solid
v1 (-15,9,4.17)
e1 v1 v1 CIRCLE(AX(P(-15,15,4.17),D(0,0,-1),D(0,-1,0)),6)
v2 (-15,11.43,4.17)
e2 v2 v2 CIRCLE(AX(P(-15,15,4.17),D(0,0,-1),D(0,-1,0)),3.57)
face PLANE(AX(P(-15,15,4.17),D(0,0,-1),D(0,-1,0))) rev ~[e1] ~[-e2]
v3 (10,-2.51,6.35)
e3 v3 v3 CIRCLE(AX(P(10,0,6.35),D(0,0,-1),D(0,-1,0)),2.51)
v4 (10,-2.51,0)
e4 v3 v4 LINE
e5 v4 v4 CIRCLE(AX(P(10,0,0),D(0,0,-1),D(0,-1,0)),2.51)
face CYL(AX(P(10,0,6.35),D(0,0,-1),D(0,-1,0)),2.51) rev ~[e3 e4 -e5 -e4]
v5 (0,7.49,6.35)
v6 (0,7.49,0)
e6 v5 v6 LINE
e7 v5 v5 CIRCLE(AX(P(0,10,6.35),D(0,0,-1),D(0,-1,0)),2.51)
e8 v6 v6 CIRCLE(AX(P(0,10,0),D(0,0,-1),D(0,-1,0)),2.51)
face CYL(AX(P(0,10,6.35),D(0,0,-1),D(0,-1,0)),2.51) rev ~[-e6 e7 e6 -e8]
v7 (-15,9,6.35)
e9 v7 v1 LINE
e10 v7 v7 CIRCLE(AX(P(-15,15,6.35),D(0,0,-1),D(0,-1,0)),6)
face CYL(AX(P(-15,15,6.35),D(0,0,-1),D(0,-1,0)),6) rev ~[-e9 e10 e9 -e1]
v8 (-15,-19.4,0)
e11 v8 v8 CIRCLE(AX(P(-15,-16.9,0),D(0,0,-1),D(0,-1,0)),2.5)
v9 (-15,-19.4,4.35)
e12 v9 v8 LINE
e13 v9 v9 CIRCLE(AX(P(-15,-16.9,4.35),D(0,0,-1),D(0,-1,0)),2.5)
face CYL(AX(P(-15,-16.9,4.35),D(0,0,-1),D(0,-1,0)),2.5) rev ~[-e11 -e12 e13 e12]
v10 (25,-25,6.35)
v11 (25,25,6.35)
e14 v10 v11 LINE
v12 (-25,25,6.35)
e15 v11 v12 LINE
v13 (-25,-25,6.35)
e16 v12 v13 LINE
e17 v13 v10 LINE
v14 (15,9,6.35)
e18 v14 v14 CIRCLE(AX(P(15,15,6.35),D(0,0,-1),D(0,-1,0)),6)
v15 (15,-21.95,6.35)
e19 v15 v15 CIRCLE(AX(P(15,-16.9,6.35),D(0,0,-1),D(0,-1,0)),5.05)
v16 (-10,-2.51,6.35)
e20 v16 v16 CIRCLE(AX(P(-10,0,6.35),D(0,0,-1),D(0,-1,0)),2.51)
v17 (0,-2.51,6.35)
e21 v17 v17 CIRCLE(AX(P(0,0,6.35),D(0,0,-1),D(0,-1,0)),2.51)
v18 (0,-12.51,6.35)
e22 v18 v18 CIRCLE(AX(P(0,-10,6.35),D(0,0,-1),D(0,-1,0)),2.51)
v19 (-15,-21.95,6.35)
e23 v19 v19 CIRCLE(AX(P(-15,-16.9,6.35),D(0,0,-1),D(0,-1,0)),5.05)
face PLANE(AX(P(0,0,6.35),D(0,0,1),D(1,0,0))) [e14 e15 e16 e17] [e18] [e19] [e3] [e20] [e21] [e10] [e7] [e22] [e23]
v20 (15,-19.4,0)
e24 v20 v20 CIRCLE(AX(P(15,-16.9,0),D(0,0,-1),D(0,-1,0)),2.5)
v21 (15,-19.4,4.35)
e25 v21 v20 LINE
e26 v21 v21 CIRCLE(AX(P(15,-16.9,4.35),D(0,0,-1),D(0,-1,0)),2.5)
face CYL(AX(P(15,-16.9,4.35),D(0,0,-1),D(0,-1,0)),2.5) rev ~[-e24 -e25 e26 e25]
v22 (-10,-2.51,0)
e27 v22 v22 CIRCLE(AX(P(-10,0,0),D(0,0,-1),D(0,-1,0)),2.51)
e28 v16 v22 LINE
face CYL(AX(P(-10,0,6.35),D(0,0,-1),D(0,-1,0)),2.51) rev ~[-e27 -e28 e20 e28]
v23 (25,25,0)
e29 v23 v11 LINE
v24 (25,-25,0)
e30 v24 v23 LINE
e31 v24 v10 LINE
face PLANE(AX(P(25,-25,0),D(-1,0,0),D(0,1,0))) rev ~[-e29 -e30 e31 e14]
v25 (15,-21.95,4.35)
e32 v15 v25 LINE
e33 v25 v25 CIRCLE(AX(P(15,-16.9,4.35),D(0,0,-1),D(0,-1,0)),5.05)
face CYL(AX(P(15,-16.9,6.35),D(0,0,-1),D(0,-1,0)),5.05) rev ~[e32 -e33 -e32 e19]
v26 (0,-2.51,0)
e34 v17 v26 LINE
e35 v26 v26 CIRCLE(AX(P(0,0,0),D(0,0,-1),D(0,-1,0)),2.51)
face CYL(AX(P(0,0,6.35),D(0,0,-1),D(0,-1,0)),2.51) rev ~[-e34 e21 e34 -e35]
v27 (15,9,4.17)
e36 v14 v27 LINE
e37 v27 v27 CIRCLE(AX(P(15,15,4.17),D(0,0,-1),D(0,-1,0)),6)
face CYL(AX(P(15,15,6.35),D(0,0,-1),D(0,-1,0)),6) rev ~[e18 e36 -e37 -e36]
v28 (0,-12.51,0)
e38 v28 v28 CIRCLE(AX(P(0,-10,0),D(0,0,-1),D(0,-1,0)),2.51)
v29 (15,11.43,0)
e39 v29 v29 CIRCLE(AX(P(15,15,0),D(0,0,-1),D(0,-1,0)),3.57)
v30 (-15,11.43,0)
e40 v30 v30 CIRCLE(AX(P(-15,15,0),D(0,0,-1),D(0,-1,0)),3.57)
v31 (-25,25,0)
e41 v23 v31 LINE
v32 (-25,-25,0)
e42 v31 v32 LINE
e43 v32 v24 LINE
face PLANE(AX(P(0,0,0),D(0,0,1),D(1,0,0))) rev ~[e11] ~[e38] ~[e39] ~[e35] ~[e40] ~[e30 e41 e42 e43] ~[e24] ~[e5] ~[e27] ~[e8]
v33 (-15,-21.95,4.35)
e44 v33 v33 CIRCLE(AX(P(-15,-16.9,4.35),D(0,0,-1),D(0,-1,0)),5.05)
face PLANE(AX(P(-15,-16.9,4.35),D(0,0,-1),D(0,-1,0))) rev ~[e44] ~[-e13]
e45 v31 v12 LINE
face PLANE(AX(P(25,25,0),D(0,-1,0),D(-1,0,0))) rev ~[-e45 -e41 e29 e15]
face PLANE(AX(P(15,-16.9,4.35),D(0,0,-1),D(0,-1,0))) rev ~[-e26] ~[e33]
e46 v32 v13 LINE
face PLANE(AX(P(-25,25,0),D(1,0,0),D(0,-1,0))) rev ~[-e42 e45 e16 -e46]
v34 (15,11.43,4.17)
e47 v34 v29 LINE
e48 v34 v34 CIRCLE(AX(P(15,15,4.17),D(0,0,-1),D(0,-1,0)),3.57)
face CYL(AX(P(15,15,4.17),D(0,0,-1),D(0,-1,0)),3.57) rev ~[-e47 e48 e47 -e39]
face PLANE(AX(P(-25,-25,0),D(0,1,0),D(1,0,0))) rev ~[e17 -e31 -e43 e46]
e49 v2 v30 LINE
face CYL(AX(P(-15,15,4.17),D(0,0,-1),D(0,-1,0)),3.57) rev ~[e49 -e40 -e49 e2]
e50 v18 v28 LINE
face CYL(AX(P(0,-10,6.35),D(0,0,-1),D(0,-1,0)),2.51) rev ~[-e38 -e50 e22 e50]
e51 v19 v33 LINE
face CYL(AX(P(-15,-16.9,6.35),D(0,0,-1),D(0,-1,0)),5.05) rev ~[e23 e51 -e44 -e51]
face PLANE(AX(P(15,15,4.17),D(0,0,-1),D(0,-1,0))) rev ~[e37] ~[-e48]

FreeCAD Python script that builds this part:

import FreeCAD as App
import Part
import Sketcher

V = App.Vector


def add_polygon(sketch, points):
    """Adds a closed chain of lines whose ends are joined by coincident constraints."""
    first, n = sketch.GeometryCount, len(points)
    for a, b in zip(points, points[1:] + points[:1]):
        sketch.addGeometry(Part.LineSegment(App.Vector(*a, 0), App.Vector(*b, 0)), False)
    for i in range(n):
        sketch.addConstraint(Sketcher.Constraint("Coincident", first + i, 2, first + (i + 1) % n, 1))

doc = App.newDocument("Part")
body = doc.addObject("PartDesign::Body", "Body")

sketch1 = body.newObject("Sketcher::SketchObject", "Sketch")
sketch1.AttachmentSupport = (doc.getObject("XY_Plane"), [""])
sketch1.MapMode = "FlatFace"
add_polygon(sketch1, [(-25, 25), (-25, -25), (25, -25), (25, 25)])
sketch1.addConstraint([
    Sketcher.Constraint("Vertical", 0),
    Sketcher.Constraint("Horizontal", 1),
    Sketcher.Constraint("Vertical", 2),
    Sketcher.Constraint("Horizontal", 3),
    Sketcher.Constraint("Symmetric", 0, 2, 2, 2, -1, 1),
    Sketcher.Constraint("Equal", 3, 0),
    Sketcher.Constraint("DistanceX", 1, 1, 1, 2, 50.0),
])
pad1 = body.newObject("PartDesign::Pad", "Pad")
pad1.Profile = sketch1
pad1.Length = 6.35

sketch2 = body.newObject("Sketcher::SketchObject", "Sketch001")
sketch2.AttachmentSupport = (doc.getObject("XY_Plane"), [""])
sketch2.MapMode = "FlatFace"
sketch2.AttachmentOffset = App.Placement(V(0, 0, 6.35), App.Rotation())
sketch2.addGeometry([
    Part.Circle(V(0, 0, 0), V(0, 0, 1), 2.5),
    Part.Circle(V(-10, 0, 0), V(0, 0, 1), 2.5),
    Part.Circle(V(0, 10, 0), V(0, 0, 1), 2.5),
    Part.Circle(V(0, -10, 0), V(0, 0, 1), 2.5),
    Part.Circle(V(10, 0, 0), V(0, 0, 1), 2.5),
], False)
sketch2.addConstraint([
    Sketcher.Constraint("Coincident", 0, 3, -1, 1),
    Sketcher.Constraint("Equal", 0, 1),
    Sketcher.Constraint("Equal", 1, 2),
    Sketcher.Constraint("Equal", 2, 3),
    Sketcher.Constraint("Equal", 3, 4),
    Sketcher.Constraint("Symmetric", 2, 3, 3, 3, -1, 1),
    Sketcher.Constraint("Symmetric", 1, 3, 4, 3, -1, 1),
    Sketcher.Constraint("PointOnObject", 1, 3, -1),
    Sketcher.Constraint("PointOnObject", 2, 3, -2),
    Sketcher.Constraint("Diameter", 0, 5.02),
    Sketcher.Constraint("DistanceX", 1, 3, -1, 1, 10.0),
    Sketcher.Constraint("DistanceY", -1, 1, 2, 3, 10.0),
])
doc.recompute()
hole = body.newObject("PartDesign::Hole", "Hole")
hole.Profile = sketch2
hole.ThreadType = "None"
hole.Diameter = 5.02
hole.DepthType = "ThroughAll"

sketch3 = body.newObject("Sketcher::SketchObject", "Sketch002")
sketch3.AttachmentSupport = (doc.getObject("XY_Plane"), [""])
sketch3.MapMode = "FlatFace"
sketch3.AttachmentOffset = App.Placement(V(0, 0, 6.35), App.Rotation())
sketch3.addGeometry([
    Part.Circle(V(-15, 15, 0), V(0, 0, 1), 3.6),
    Part.Circle(V(15, 15, 0), V(0, 0, 1), 3.6),
], False)
sketch3.addConstraint([
    Sketcher.Constraint("Equal", 0, 1),
    Sketcher.Constraint("Symmetric", 0, 3, 1, 3, -2),
    Sketcher.Constraint("Diameter", 0, 7.14),
    Sketcher.Constraint("DistanceX", 0, 3, -1, 1, 15.0),
    Sketcher.Constraint("DistanceY", -1, 1, 0, 3, 15.0),
])
doc.recompute()
hole2 = body.newObject("PartDesign::Hole", "Hole001")
hole2.Profile = sketch3
hole2.ThreadType = "None"
hole2.Diameter = 7.14
hole2.DepthType = "ThroughAll"
hole2.HoleCutType = "Counterbore"
hole2.HoleCutDiameter = 12
hole2.HoleCutDepth = 2.18

sketch4 = body.newObject("Sketcher::SketchObject", "Sketch003")
sketch4.AttachmentSupport = (doc.getObject("XY_Plane"), [""])
sketch4.MapMode = "FlatFace"
sketch4.AttachmentOffset = App.Placement(V(0, 0, 6.35), App.Rotation())
sketch4.addGeometry([
    Part.Circle(V(-15, -16.9, 0), V(0, 0, 1), 2.5),
    Part.Circle(V(15, -16.9, 0), V(0, 0, 1), 2.5),
], False)
sketch4.addConstraint([
    Sketcher.Constraint("Equal", 0, 1),
    Sketcher.Constraint("Symmetric", 0, 3, 1, 3, -2),
    Sketcher.Constraint("Diameter", 0, 5.0),
    Sketcher.Constraint("DistanceX", 0, 3, -1, 1, 15.0),
    Sketcher.Constraint("DistanceY", 0, 3, -1, 1, 16.9),
])
doc.recompute()
hole3 = body.newObject("PartDesign::Hole", "Hole002")
hole3.Profile = sketch4
hole3.ThreadType = "None"
hole3.Diameter = 5
hole3.DepthType = "ThroughAll"
hole3.HoleCutType = "Counterbore"
hole3.HoleCutDiameter = 10.1
hole3.HoleCutDepth = 2

doc.recompute()
